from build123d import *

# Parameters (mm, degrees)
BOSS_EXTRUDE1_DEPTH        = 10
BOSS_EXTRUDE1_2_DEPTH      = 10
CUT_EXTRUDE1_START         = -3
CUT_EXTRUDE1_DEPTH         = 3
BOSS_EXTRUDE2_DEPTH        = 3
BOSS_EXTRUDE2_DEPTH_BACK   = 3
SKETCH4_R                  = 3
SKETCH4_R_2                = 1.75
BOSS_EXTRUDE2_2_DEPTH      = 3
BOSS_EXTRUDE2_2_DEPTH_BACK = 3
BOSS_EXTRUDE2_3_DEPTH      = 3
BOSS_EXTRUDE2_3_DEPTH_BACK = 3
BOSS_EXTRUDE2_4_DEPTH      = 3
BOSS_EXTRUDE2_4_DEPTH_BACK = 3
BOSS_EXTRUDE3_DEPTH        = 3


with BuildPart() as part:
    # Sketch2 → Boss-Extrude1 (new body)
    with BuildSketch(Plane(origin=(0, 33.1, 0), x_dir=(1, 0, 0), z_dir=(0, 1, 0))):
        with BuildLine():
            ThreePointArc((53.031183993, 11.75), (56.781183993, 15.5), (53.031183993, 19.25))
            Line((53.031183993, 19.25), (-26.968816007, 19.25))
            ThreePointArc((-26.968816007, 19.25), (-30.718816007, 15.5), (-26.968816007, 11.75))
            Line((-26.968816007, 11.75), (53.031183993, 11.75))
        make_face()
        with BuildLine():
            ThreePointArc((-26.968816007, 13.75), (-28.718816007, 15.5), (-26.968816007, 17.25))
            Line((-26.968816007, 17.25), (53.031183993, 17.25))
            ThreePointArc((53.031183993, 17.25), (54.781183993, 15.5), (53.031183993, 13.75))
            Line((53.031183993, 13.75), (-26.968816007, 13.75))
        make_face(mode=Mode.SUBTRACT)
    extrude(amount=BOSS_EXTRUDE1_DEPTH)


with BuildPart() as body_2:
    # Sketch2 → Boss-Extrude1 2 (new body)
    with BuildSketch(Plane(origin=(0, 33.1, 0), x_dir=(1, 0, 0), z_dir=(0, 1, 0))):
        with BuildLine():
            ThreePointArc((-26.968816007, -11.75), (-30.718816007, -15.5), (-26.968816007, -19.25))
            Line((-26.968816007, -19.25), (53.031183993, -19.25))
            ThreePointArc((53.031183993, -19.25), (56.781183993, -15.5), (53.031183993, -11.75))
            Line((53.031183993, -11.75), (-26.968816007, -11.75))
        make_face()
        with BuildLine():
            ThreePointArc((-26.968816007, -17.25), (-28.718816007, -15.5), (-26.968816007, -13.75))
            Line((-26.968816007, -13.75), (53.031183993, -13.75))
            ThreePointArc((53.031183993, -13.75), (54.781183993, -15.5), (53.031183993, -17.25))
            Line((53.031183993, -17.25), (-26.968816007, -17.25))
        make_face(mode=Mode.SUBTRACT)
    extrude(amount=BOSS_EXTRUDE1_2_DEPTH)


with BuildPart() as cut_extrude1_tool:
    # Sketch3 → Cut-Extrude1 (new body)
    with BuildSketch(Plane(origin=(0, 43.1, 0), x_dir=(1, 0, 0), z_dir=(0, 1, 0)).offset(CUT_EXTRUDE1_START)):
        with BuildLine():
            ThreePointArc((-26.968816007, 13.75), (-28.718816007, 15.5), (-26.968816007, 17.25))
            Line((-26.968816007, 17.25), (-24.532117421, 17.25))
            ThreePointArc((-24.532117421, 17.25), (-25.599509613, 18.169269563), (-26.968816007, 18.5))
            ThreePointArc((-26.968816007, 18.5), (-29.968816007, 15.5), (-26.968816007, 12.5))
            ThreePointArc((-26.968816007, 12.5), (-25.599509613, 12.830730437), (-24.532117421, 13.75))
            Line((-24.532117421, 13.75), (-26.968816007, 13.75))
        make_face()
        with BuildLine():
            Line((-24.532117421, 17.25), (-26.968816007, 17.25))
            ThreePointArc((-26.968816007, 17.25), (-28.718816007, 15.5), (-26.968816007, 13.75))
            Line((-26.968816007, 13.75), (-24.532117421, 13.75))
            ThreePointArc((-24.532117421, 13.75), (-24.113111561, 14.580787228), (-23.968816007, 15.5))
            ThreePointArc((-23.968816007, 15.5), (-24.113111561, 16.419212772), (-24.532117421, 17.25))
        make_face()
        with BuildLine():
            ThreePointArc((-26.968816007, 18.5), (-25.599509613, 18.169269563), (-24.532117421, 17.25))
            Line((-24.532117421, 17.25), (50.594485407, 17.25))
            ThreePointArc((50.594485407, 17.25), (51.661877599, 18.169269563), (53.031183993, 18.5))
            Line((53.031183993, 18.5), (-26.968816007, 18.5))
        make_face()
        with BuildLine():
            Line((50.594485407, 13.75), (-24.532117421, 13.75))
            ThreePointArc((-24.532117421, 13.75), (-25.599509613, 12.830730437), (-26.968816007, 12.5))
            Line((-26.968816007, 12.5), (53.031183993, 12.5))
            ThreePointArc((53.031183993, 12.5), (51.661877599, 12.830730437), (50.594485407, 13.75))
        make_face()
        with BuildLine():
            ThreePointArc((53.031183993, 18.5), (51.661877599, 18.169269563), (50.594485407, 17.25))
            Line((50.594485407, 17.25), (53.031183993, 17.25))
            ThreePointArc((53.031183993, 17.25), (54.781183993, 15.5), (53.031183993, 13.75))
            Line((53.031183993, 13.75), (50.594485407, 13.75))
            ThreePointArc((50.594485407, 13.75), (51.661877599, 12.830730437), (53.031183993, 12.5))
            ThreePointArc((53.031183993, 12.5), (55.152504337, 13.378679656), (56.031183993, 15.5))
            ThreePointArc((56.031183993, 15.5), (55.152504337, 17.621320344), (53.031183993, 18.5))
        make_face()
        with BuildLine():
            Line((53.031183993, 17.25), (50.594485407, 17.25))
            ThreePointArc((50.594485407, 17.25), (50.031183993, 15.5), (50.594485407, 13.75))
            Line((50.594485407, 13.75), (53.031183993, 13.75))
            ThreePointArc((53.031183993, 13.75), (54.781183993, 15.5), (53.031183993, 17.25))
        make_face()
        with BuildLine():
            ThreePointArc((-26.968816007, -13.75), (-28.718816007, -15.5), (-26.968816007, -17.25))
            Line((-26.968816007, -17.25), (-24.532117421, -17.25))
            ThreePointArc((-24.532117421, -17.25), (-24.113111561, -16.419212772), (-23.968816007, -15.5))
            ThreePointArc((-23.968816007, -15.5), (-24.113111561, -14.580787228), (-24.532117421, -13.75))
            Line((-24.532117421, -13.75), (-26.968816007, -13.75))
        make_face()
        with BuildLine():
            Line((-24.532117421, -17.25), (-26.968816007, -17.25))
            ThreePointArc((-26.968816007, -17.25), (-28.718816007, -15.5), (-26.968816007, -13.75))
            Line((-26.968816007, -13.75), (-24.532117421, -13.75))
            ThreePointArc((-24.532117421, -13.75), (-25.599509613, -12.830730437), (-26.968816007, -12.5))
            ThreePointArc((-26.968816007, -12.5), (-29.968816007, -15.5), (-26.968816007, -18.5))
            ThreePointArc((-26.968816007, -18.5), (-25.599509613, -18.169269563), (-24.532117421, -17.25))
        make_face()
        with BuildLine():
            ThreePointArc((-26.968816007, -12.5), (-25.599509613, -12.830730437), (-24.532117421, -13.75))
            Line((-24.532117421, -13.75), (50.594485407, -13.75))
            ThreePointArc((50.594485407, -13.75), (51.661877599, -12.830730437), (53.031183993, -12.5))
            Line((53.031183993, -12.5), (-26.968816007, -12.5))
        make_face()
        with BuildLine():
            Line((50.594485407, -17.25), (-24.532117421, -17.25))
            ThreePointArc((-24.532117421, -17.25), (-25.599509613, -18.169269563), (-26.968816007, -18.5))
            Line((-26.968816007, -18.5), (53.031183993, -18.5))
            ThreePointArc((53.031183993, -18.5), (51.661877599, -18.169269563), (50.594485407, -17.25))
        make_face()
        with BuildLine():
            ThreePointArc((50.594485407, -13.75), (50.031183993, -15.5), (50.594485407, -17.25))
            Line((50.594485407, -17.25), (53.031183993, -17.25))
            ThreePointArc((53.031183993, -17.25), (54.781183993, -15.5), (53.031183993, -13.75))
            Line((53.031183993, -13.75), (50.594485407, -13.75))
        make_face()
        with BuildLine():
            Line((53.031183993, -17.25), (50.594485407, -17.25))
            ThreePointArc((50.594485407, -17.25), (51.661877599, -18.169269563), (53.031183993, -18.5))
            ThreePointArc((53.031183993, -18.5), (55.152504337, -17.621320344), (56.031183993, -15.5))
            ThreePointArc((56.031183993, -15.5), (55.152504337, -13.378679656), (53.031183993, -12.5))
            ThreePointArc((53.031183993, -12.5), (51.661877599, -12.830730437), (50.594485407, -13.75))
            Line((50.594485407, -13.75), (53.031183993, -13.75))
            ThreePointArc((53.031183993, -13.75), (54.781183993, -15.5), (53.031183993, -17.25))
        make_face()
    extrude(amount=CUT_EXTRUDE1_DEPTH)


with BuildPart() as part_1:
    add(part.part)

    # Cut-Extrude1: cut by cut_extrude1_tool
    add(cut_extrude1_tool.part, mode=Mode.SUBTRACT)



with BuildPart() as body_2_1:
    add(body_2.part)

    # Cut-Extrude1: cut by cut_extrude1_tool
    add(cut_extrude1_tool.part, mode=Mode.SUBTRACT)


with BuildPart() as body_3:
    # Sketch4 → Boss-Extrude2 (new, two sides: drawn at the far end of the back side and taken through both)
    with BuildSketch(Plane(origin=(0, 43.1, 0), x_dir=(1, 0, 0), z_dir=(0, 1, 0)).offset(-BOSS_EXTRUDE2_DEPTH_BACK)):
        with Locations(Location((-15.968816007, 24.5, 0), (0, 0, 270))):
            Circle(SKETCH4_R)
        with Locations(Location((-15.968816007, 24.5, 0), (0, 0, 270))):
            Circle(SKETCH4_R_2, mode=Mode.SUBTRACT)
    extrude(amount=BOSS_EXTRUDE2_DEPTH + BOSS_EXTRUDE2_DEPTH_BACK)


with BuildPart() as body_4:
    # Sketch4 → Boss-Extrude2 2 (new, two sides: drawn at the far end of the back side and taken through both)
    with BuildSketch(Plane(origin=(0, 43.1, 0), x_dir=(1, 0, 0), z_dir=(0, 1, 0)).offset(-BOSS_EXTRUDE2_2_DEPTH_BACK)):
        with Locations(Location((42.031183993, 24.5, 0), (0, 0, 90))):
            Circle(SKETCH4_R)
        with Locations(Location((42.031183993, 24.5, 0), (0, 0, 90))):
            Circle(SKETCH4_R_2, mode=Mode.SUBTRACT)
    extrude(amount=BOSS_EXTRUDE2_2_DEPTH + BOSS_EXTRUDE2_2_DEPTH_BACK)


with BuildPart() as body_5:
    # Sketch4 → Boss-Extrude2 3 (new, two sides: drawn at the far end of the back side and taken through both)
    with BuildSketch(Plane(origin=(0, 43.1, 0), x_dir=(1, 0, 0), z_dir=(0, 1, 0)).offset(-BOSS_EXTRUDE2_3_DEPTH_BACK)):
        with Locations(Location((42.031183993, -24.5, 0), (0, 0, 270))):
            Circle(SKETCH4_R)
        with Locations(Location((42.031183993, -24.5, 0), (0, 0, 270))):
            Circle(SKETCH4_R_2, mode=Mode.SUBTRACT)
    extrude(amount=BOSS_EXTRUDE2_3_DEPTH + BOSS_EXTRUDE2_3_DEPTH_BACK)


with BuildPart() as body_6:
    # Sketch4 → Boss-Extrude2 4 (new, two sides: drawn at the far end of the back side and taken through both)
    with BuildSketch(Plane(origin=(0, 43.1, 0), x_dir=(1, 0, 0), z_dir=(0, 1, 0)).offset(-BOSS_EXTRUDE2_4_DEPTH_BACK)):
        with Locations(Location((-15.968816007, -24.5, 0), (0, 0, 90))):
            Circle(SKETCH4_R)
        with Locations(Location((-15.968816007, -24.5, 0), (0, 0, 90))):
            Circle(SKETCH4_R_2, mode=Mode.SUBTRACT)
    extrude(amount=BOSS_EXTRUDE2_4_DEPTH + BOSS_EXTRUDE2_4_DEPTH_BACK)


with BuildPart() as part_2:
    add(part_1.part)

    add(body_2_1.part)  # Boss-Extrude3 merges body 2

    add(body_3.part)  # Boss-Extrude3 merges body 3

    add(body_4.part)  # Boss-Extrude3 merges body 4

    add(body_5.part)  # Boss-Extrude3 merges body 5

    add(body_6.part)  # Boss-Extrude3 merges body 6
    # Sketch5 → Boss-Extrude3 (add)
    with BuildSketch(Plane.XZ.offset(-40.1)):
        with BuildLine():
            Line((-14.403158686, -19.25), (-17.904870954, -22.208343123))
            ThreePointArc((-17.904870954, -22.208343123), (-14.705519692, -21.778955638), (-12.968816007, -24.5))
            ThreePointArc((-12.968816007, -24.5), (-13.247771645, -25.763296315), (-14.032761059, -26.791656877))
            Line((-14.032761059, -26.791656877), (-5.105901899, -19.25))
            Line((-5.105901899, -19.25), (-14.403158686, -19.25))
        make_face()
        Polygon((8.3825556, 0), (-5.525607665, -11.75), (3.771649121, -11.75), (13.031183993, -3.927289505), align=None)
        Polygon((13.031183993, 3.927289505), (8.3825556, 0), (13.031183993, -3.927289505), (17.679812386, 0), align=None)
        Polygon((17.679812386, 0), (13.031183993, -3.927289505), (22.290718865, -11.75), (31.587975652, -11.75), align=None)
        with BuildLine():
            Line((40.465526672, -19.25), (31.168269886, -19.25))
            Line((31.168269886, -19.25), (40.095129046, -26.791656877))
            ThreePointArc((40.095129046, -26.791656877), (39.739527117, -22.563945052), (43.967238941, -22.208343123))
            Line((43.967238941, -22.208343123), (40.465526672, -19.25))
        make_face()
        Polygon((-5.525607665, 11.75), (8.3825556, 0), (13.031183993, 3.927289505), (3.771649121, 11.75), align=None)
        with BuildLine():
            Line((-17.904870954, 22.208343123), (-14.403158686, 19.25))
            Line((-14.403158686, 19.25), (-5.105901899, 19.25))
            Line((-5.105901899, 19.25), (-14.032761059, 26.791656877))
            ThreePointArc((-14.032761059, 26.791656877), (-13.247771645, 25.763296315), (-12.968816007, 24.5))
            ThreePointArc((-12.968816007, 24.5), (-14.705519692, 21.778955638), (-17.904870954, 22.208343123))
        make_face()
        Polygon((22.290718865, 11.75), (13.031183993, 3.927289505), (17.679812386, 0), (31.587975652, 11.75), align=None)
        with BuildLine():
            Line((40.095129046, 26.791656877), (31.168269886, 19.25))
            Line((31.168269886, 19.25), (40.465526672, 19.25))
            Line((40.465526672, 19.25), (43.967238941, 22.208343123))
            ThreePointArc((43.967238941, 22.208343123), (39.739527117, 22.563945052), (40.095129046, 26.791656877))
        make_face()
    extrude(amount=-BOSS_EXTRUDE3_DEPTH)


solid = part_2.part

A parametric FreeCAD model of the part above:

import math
import FreeCAD as App
import Part
import Sketcher
from FreeCAD import Vector

doc = App.newDocument("Part")
body = doc.addObject("PartDesign::Body", "Body")

sketch1 = body.newObject("Sketcher::SketchObject", "Sketch")
sketch1.AttachmentSupport = (doc.getObject("XZ_Plane"), [""])
sketch1.MapMode = "FlatFace"
sketch1.AttachmentOffset = App.Placement(Vector(0, 0, -33.1), App.Rotation())
sketch1.addGeometry([
    Part.ArcOfCircle(Part.Circle(Vector(53.031184, -15.5, 0), Vector(0, 0, 1), 3.75), math.radians(-90), math.radians(90)),
    Part.LineSegment(Vector(53.031184, -19.25, 0), Vector(-26.968816, -19.25, 0)),
    Part.ArcOfCircle(Part.Circle(Vector(-26.968816, -15.5, 0), Vector(0, 0, 1), 3.75), math.radians(90), math.radians(270)),
    Part.LineSegment(Vector(-26.968816, -11.75, 0), Vector(53.031184, -11.75, 0)),
    Part.LineSegment(Vector(53.031184, -13.75, 0), Vector(-26.968816, -13.75, 0)),
    Part.ArcOfCircle(Part.Circle(Vector(-26.968816, -15.5, 0), Vector(0, 0, 1), 1.75), math.radians(90), math.radians(270)),
    Part.LineSegment(Vector(-26.968816, -17.25, 0), Vector(53.031184, -17.25, 0)),
    Part.ArcOfCircle(Part.Circle(Vector(53.031184, -15.5, 0), Vector(0, 0, 1), 1.75), math.radians(-90), math.radians(90)),
], False)
sketch1.addConstraint([
    Sketcher.Constraint("Tangent", 0, 1, 1, 1),
    Sketcher.Constraint("Tangent", 1, 2, 2, 2),
    Sketcher.Constraint("Tangent", 2, 1, 3, 1),
    Sketcher.Constraint("Tangent", 3, 2, 0, 2),
    Sketcher.Constraint("Tangent", 4, 2, 5, 1),
    Sketcher.Constraint("Tangent", 5, 2, 6, 1),
    Sketcher.Constraint("Tangent", 6, 2, 7, 1),
    Sketcher.Constraint("Tangent", 7, 2, 4, 1),
    Sketcher.Constraint("Horizontal", 1),
    Sketcher.Constraint("Horizontal", 3),
    Sketcher.Constraint("Horizontal", 4),
    Sketcher.Constraint("Horizontal", 6),
    Sketcher.Constraint("Coincident", 5, 3, 2, 3),
    Sketcher.Constraint("Vertical", 7, 3, 0, 1),
    Sketcher.Constraint("DistanceX", 1, 2, 1, 1, 80.0),
    Sketcher.Constraint("Radius", 0, 3.75),
    Sketcher.Constraint("Radius", 5, 1.75),
    Sketcher.Constraint("DistanceY", 0, 3, -1, 1, 15.5),
    Sketcher.Constraint("DistanceX", -1, 1, 0, 3, 53.031184),
])
pad1 = body.newObject("PartDesign::Pad", "Pad")
pad1.Profile = sketch1
pad1.Length = 10
pad1.Reversed = True
body2 = doc.addObject("PartDesign::Body", "Body001")

sketch2 = body2.newObject("Sketcher::SketchObject", "Sketch001")
sketch2.AttachmentSupport = (doc.getObject("XZ_Plane001"), [""])
sketch2.MapMode = "FlatFace"
sketch2.AttachmentOffset = App.Placement(Vector(0, 0, -33.1), App.Rotation())
sketch2.addGeometry([
    Part.ArcOfCircle(Part.Circle(Vector(-26.968816, 15.5, 0), Vector(0, 0, 1), 3.75), math.radians(90), math.radians(270)),
    Part.LineSegment(Vector(-26.968816, 19.25, 0), Vector(53.031184, 19.25, 0)),
    Part.ArcOfCircle(Part.Circle(Vector(53.031184, 15.5, 0), Vector(0, 0, 1), 3.75), math.radians(-90), math.radians(90)),
    Part.LineSegment(Vector(53.031184, 11.75, 0), Vector(-26.968816, 11.75, 0)),
    Part.LineSegment(Vector(53.031184, 17.25, 0), Vector(-26.968816, 17.25, 0)),
    Part.ArcOfCircle(Part.Circle(Vector(-26.968816, 15.5, 0), Vector(0, 0, 1), 1.75), math.radians(90), math.radians(270)),
    Part.LineSegment(Vector(-26.968816, 13.75, 0), Vector(53.031184, 13.75, 0)),
    Part.ArcOfCircle(Part.Circle(Vector(53.031184, 15.5, 0), Vector(0, 0, 1), 1.75), math.radians(-90), math.radians(90)),
], False)
sketch2.addConstraint([
    Sketcher.Constraint("Tangent", 0, 1, 1, 1),
    Sketcher.Constraint("Tangent", 1, 2, 2, 2),
    Sketcher.Constraint("Tangent", 2, 1, 3, 1),
    Sketcher.Constraint("Tangent", 3, 2, 0, 2),
    Sketcher.Constraint("Tangent", 4, 2, 5, 1),
    Sketcher.Constraint("Tangent", 5, 2, 6, 1),
    Sketcher.Constraint("Tangent", 6, 2, 7, 1),
    Sketcher.Constraint("Tangent", 7, 2, 4, 1),
    Sketcher.Constraint("Horizontal", 1),
    Sketcher.Constraint("Horizontal", 3),
    Sketcher.Constraint("Horizontal", 4),
    Sketcher.Constraint("Horizontal", 6),
    Sketcher.Constraint("Coincident", 5, 3, 0, 3),
    Sketcher.Constraint("Vertical", 7, 3, 1, 2),
    Sketcher.Constraint("DistanceX", 1, 1, 1, 2, 80.0),
    Sketcher.Constraint("Radius", 0, 3.75),
    Sketcher.Constraint("Radius", 5, 1.75),
    Sketcher.Constraint("DistanceY", -1, 1, 0, 3, 15.5),
    Sketcher.Constraint("DistanceX", 0, 3, -1, 1, 26.968816),
])
pad2 = body2.newObject("PartDesign::Pad", "Pad001")
pad2.Profile = sketch2
pad2.Length = 10
pad2.Reversed = True
body3 = doc.addObject("PartDesign::Body", "Body002")
body3.AllowCompound = True

sketch3 = body3.newObject("Sketcher::SketchObject", "Sketch002")
sketch3.AttachmentSupport = (doc.getObject("XZ_Plane002"), [""])
sketch3.MapMode = "FlatFace"
sketch3.AttachmentOffset = App.Placement(Vector(0, 0, -40.1), App.Rotation())
sketch3.addGeometry([
    Part.ArcOfCircle(Part.Circle(Vector(-26.968816, -15.5, 0), Vector(0, 0, 1), 3), math.radians(90), math.radians(270)),
    Part.LineSegment(Vector(-26.968816, -12.5, 0), Vector(53.031184, -12.5, 0)),
    Part.ArcOfCircle(Part.Circle(Vector(53.031184, -15.5, 0), Vector(0, 0, 1), 3), math.radians(0), math.radians(90)),
    Part.ArcOfCircle(Part.Circle(Vector(53.031184, -15.5, 0), Vector(0, 0, 1), 3), math.radians(-90), math.radians(0)),
    Part.LineSegment(Vector(53.031184, -18.5, 0), Vector(-26.968816, -18.5, 0)),
    Part.ArcOfCircle(Part.Circle(Vector(-26.968816, -15.5, 0), Vector(0, 0, 1), 3), math.radians(0), math.radians(35.685335)),
    Part.ArcOfCircle(Part.Circle(Vector(-26.968816, -15.5, 0), Vector(0, 0, 1), 3), math.radians(-35.685335), math.radians(0)),
    Part.LineSegment(Vector(-24.532117, -17.25, 0), Vector(50.594485, -17.25, 0)),
    Part.ArcOfCircle(Part.Circle(Vector(53.031184, -15.5, 0), Vector(0, 0, 1), 3), math.radians(144.314665), math.radians(215.685335)),
    Part.LineSegment(Vector(50.594485, -13.75, 0), Vector(-24.532117, -13.75, 0)),
    Part.LineSegment(Vector(53.031184, 12.5, 0), Vector(-26.968816, 12.5, 0)),
    Part.ArcOfCircle(Part.Circle(Vector(-26.968816, 15.5, 0), Vector(0, 0, 1), 3), math.radians(90), math.radians(270)),
    Part.LineSegment(Vector(-26.968816, 18.5, 0), Vector(53.031184, 18.5, 0)),
    Part.ArcOfCircle(Part.Circle(Vector(53.031184, 15.5, 0), Vector(0, 0, 1), 3), math.radians(0), math.radians(90)),
    Part.ArcOfCircle(Part.Circle(Vector(53.031184, 15.5, 0), Vector(0, 0, 1), 3), math.radians(-90), math.radians(0)),
    Part.ArcOfCircle(Part.Circle(Vector(-26.968816, 15.5, 0), Vector(0, 0, 1), 3), math.radians(0), math.radians(35.685335)),
    Part.ArcOfCircle(Part.Circle(Vector(-26.968816, 15.5, 0), Vector(0, 0, 1), 3), math.radians(-35.685335), math.radians(0)),
    Part.LineSegment(Vector(-24.532117, 13.75, 0), Vector(50.594485, 13.75, 0)),
    Part.ArcOfCircle(Part.Circle(Vector(53.031184, 15.5, 0), Vector(0, 0, 1), 3), math.radians(144.314665), math.radians(215.685335)),
    Part.LineSegment(Vector(50.594485, 17.25, 0), Vector(-24.532117, 17.25, 0)),
], False)
sketch3.addConstraint([
    Sketcher.Constraint("Tangent", 0, 1, 1, 1),
    Sketcher.Constraint("Tangent", 1, 2, 2, 2),
    Sketcher.Constraint("Tangent", 2, 1, 3, 2),
    Sketcher.Constraint("Tangent", 3, 1, 4, 1),
    Sketcher.Constraint("Tangent", 4, 2, 0, 2),
    Sketcher.Constraint("Tangent", 5, 1, 6, 2),
    Sketcher.Constraint("Coincident", 6, 1, 7, 1),
    Sketcher.Constraint("Coincident", 7, 2, 8, 2),
    Sketcher.Constraint("Coincident", 8, 1, 9, 1),
    Sketcher.Constraint("Coincident", 9, 2, 5, 2),
    Sketcher.Constraint("Tangent", 10, 2, 11, 2),
    Sketcher.Constraint("Tangent", 11, 1, 12, 1),
    Sketcher.Constraint("Tangent", 12, 2, 13, 2),
    Sketcher.Constraint("Tangent", 13, 1, 14, 2),
    Sketcher.Constraint("Tangent", 14, 1, 10, 1),
    Sketcher.Constraint("Tangent", 15, 1, 16, 2),
    Sketcher.Constraint("Coincident", 16, 1, 17, 1),
    Sketcher.Constraint("Coincident", 17, 2, 18, 2),
    Sketcher.Constraint("Coincident", 18, 1, 19, 1),
    Sketcher.Constraint("Coincident", 19, 2, 15, 2),
    Sketcher.Constraint("Horizontal", 1),
    Sketcher.Constraint("Horizontal", 4),
    Sketcher.Constraint("Horizontal", 7),
    Sketcher.Constraint("Horizontal", 9),
    Sketcher.Constraint("Horizontal", 10),
    Sketcher.Constraint("Horizontal", 12),
    Sketcher.Constraint("Horizontal", 17),
    Sketcher.Constraint("Horizontal", 19),
    Sketcher.Constraint("Coincident", 5, 3, 0, 3),
    Sketcher.Constraint("Coincident", 8, 3, 2, 3),
    Sketcher.Constraint("Coincident", 15, 3, 11, 3),
    Sketcher.Constraint("Coincident", 18, 3, 13, 3),
    Sketcher.Constraint("Equal", 0, 2),
    Sketcher.Constraint("Equal", 3, 5),
    Sketcher.Constraint("Equal", 5, 6),
    Sketcher.Constraint("Equal", 6, 8),
    Sketcher.Constraint("Equal", 8, 11),
    Sketcher.Constraint("Equal", 11, 13),
    Sketcher.Constraint("Equal", 14, 15),
    Sketcher.Constraint("Equal", 15, 16),
    Sketcher.Constraint("Equal", 16, 18),
    Sketcher.Constraint("Symmetric", 0, 3, 11, 3, -1),
    Sketcher.Constraint("Symmetric", 2, 1, 13, 1, -1),
    Sketcher.Constraint("Horizontal", 8, 3, 2, 1),
    Sketcher.Constraint("Horizontal", 2, 1, 5, 1),
    Sketcher.Constraint("Horizontal", 13, 1, 15, 1),
    Sketcher.Constraint("Vertical", 7, 2, 8, 1),
    Sketcher.Constraint("Vertical", 9, 2, 16, 1),
    Sketcher.Constraint("Vertical", 17, 2, 18, 1),
    Sketcher.Constraint("Radius", 0, 3.0),
    Sketcher.Constraint("DistanceX", 1, 1, 1, 2, 80.0),
    Sketcher.Constraint("DistanceY", 5, 3, 11, 3, 31.0),
    Sketcher.Constraint("DistanceY", 7, 2, 8, 1, 3.5),
    Sketcher.Constraint("DistanceX", 0, 3, -1, 1, 26.968816),
])
pad3 = body3.newObject("PartDesign::Pad", "Pad002")
pad3.Profile = sketch3
pad3.Length = 3
pad3.Reversed = True
doc.recompute()

body4 = doc.addObject("PartDesign::Body", "Body003")
body4.BaseFeature = body3
boolean = body.newObject("PartDesign::Boolean", "Boolean")
boolean.Type = "Cut"
boolean.addObjects([body4])
doc.recompute()

boolean2 = body2.newObject("PartDesign::Boolean", "Boolean001")
boolean2.Type = "Cut"
boolean2.addObjects([body3])
body5 = doc.addObject("PartDesign::Body", "Body004")

sketch4 = body5.newObject("Sketcher::SketchObject", "Sketch003")
sketch4.AttachmentSupport = (doc.getObject("XZ_Plane004"), [""])
sketch4.MapMode = "FlatFace"
sketch4.AttachmentOffset = App.Placement(Vector(0, 0, -43.1), App.Rotation())
sketch4.addGeometry([
    Part.Circle(Vector(-15.968816, -24.5, 0), Vector(0, 0, 1), 3),
    Part.Circle(Vector(-15.968816, -24.5, 0), Vector(0, 0, 1), 1.75),
], False)
sketch4.addConstraint([
    Sketcher.Constraint("Coincident", 1, 3, 0, 3),
    Sketcher.Constraint("Diameter", 0, 6.0),
    Sketcher.Constraint("Diameter", 1, 3.5),
    Sketcher.Constraint("DistanceY", 0, 3, -1, 1, 24.5),
    Sketcher.Constraint("DistanceX", 0, 3, -1, 1, 15.968816),
])
pad4 = body5.newObject("PartDesign::Pad", "Pad003")
pad4.Profile = sketch4
pad4.Type = "TwoLengths"
pad4.Length = 3
pad4.Length2 = 3
pad4.Reversed = True
body6 = doc.addObject("PartDesign::Body", "Body005")

sketch5 = body6.newObject("Sketcher::SketchObject", "Sketch004")
sketch5.AttachmentSupport = (doc.getObject("XZ_Plane005"), [""])
sketch5.MapMode = "FlatFace"
sketch5.AttachmentOffset = App.Placement(Vector(0, 0, -43.1), App.Rotation())
sketch5.addGeometry([
    Part.Circle(Vector(42.031184, -24.5, 0), Vector(0, 0, 1), 3),
    Part.Circle(Vector(42.031184, -24.5, 0), Vector(0, 0, 1), 1.75),
], False)
sketch5.addConstraint([
    Sketcher.Constraint("Coincident", 1, 3, 0, 3),
    Sketcher.Constraint("Diameter", 0, 6.0),
    Sketcher.Constraint("Diameter", 1, 3.5),
    Sketcher.Constraint("DistanceY", 0, 3, -1, 1, 24.5),
    Sketcher.Constraint("DistanceX", -1, 1, 0, 3, 42.031184),
])
pad5 = body6.newObject("PartDesign::Pad", "Pad004")
pad5.Profile = sketch5
pad5.Type = "TwoLengths"
pad5.Length = 3
pad5.Length2 = 3
pad5.Reversed = True
body7 = doc.addObject("PartDesign::Body", "Body006")

sketch6 = body7.newObject("Sketcher::SketchObject", "Sketch005")
sketch6.AttachmentSupport = (doc.getObject("XZ_Plane006"), [""])
sketch6.MapMode = "FlatFace"
sketch6.AttachmentOffset = App.Placement(Vector(0, 0, -43.1), App.Rotation())
sketch6.addGeometry([
    Part.Circle(Vector(42.031184, 24.5, 0), Vector(0, 0, 1), 3),
    Part.Circle(Vector(42.031184, 24.5, 0), Vector(0, 0, 1), 1.75),
], False)
sketch6.addConstraint([
    Sketcher.Constraint("Coincident", 1, 3, 0, 3),
    Sketcher.Constraint("Diameter", 0, 6.0),
    Sketcher.Constraint("Diameter", 1, 3.5),
    Sketcher.Constraint("DistanceY", -1, 1, 0, 3, 24.5),
    Sketcher.Constraint("DistanceX", -1, 1, 0, 3, 42.031184),
])
pad6 = body7.newObject("PartDesign::Pad", "Pad005")
pad6.Profile = sketch6
pad6.Type = "TwoLengths"
pad6.Length = 3
pad6.Length2 = 3
pad6.Reversed = True
body8 = doc.addObject("PartDesign::Body", "Body007")

sketch7 = body8.newObject("Sketcher::SketchObject", "Sketch006")
sketch7.AttachmentSupport = (doc.getObject("XZ_Plane007"), [""])
sketch7.MapMode = "FlatFace"
sketch7.AttachmentOffset = App.Placement(Vector(0, 0, -43.1), App.Rotation())
sketch7.addGeometry([
    Part.Circle(Vector(-15.968816, 24.5, 0), Vector(0, 0, 1), 3),
    Part.Circle(Vector(-15.968816, 24.5, 0), Vector(0, 0, 1), 1.75),
], False)
sketch7.addConstraint([
    Sketcher.Constraint("Coincident", 1, 3, 0, 3),
    Sketcher.Constraint("Diameter", 0, 6.0),
    Sketcher.Constraint("Diameter", 1, 3.5),
    Sketcher.Constraint("DistanceY", -1, 1, 0, 3, 24.5),
    Sketcher.Constraint("DistanceX", 0, 3, -1, 1, 15.968816),
])
pad7 = body8.newObject("PartDesign::Pad", "Pad006")
pad7.Profile = sketch7
pad7.Type = "TwoLengths"
pad7.Length = 3
pad7.Length2 = 3
pad7.Reversed = True
body.AllowCompound = True
doc.recompute()

boolean3 = body.newObject("PartDesign::Boolean", "Boolean002")
boolean3.Type = "Fuse"
boolean3.addObjects([body2])
doc.recompute()

boolean4 = body.newObject("PartDesign::Boolean", "Boolean003")
boolean4.Type = "Fuse"
boolean4.addObjects([body5])
doc.recompute()

boolean5 = body.newObject("PartDesign::Boolean", "Boolean004")
boolean5.Type = "Fuse"
boolean5.addObjects([body6])
doc.recompute()

boolean6 = body.newObject("PartDesign::Boolean", "Boolean005")
boolean6.Type = "Fuse"
boolean6.addObjects([body7])
doc.recompute()

boolean7 = body.newObject("PartDesign::Boolean", "Boolean006")
boolean7.Type = "Fuse"
boolean7.addObjects([body8])

sketch8 = body.newObject("Sketcher::SketchObject", "Sketch007")
sketch8.AttachmentSupport = (doc.getObject("XZ_Plane"), [""])
sketch8.MapMode = "FlatFace"
sketch8.AttachmentOffset = App.Placement(Vector(0, 0, -40.1), App.Rotation())
sketch8.addGeometry([
    Part.LineSegment(Vector(-14.403159, -19.25, 0), Vector(-17.904871, -22.208343, 0)),
    Part.ArcOfCircle(Part.Circle(Vector(-15.968816, -24.5, 0), Vector(0, 0, 1), 3), math.radians(0), math.radians(130.192046)),
    Part.ArcOfCircle(Part.Circle(Vector(-15.968816, -24.5, 0), Vector(0, 0, 1), 3), math.radians(-49.807954), math.radians(0)),
    Part.LineSegment(Vector(-14.032761, -26.791657, 0), Vector(-5.105902, -19.25, 0)),
    Part.LineSegment(Vector(-5.105902, -19.25, 0), Vector(-14.403159, -19.25, 0)),
    Part.LineSegment(Vector(8.382556, 0, 0), Vector(-5.525608, -11.75, 0)),
    Part.LineSegment(Vector(-5.525608, -11.75, 0), Vector(3.771649, -11.75, 0)),
    Part.LineSegment(Vector(3.771649, -11.75, 0), Vector(13.031184, -3.92729, 0)),
    Part.LineSegment(Vector(13.031184, -3.92729, 0), Vector(22.290719, -11.75, 0)),
    Part.LineSegment(Vector(22.290719, -11.75, 0), Vector(31.587976, -11.75, 0)),
    Part.LineSegment(Vector(31.587976, -11.75, 0), Vector(17.679812, 0, 0)),
    Part.LineSegment(Vector(17.679812, 0, 0), Vector(31.587976, 11.75, 0)),
    Part.LineSegment(Vector(31.587976, 11.75, 0), Vector(22.290719, 11.75, 0)),
    Part.LineSegment(Vector(22.290719, 11.75, 0), Vector(13.031184, 3.92729, 0)),
    Part.LineSegment(Vector(13.031184, 3.92729, 0), Vector(3.771649, 11.75, 0)),
    Part.LineSegment(Vector(3.771649, 11.75, 0), Vector(-5.525608, 11.75, 0)),
    Part.LineSegment(Vector(-5.525608, 11.75, 0), Vector(8.382556, 0, 0)),
    Part.LineSegment(Vector(40.465527, -19.25, 0), Vector(31.16827, -19.25, 0)),
    Part.LineSegment(Vector(31.16827, -19.25, 0), Vector(40.095129, -26.791657, 0)),
    Part.ArcOfCircle(Part.Circle(Vector(42.031184, -24.5, 0), Vector(0, 0, 1), 3), math.radians(49.807954), math.radians(229.807954)),
    Part.LineSegment(Vector(43.967239, -22.208343, 0), Vector(40.465527, -19.25, 0)),
    Part.LineSegment(Vector(-17.904871, 22.208343, 0), Vector(-14.403159, 19.25, 0)),
    Part.LineSegment(Vector(-14.403159, 19.25, 0), Vector(-5.105902, 19.25, 0)),
    Part.LineSegment(Vector(-5.105902, 19.25, 0), Vector(-14.032761, 26.791657, 0)),
    Part.ArcOfCircle(Part.Circle(Vector(-15.968816, 24.5, 0), Vector(0, 0, 1), 3), math.radians(0), math.radians(49.807954)),
    Part.ArcOfCircle(Part.Circle(Vector(-15.968816, 24.5, 0), Vector(0, 0, 1), 3), math.radians(-130.192046), math.radians(0)),
    Part.LineSegment(Vector(40.095129, 26.791657, 0), Vector(31.16827, 19.25, 0)),
    Part.LineSegment(Vector(31.16827, 19.25, 0), Vector(40.465527, 19.25, 0)),
    Part.LineSegment(Vector(40.465527, 19.25, 0), Vector(43.967239, 22.208343, 0)),
    Part.ArcOfCircle(Part.Circle(Vector(42.031184, 24.5, 0), Vector(0, 0, 1), 3), math.radians(130.192046), math.radians(310.192046)),
], False)
sketch8.addConstraint([
    Sketcher.Constraint("Tangent", 0, 2, 1, 2),
    Sketcher.Constraint("Tangent", 1, 1, 2, 2),
    Sketcher.Constraint("Tangent", 2, 1, 3, 1),
    Sketcher.Constraint("Coincident", 3, 2, 4, 1),
    Sketcher.Constraint("Coincident", 4, 2, 0, 1),
    Sketcher.Constraint("Coincident", 5, 2, 6, 1),
    Sketcher.Constraint("Coincident", 6, 2, 7, 1),
    Sketcher.Constraint("Coincident", 7, 2, 8, 1),
    Sketcher.Constraint("Coincident", 8, 2, 9, 1),
    Sketcher.Constraint("Coincident", 9, 2, 10, 1),
    Sketcher.Constraint("Coincident", 10, 2, 11, 1),
    Sketcher.Constraint("Coincident", 11, 2, 12, 1),
    Sketcher.Constraint("Coincident", 12, 2, 13, 1),
    Sketcher.Constraint("Coincident", 13, 2, 14, 1),
    Sketcher.Constraint("Coincident", 14, 2, 15, 1),
    Sketcher.Constraint("Coincident", 15, 2, 16, 1),
    Sketcher.Constraint("Coincident", 16, 2, 5, 1),
    Sketcher.Constraint("Coincident", 17, 2, 18, 1),
    Sketcher.Constraint("Tangent", 18, 2, 19, 2),
    Sketcher.Constraint("Tangent", 19, 1, 20, 1),
    Sketcher.Constraint("Coincident", 20, 2, 17, 1),
    Sketcher.Constraint("Coincident", 21, 2, 22, 1),
    Sketcher.Constraint("Coincident", 22, 2, 23, 1),
    Sketcher.Constraint("Tangent", 23, 2, 24, 2),
    Sketcher.Constraint("Tangent", 24, 1, 25, 2),
    Sketcher.Constraint("Tangent", 25, 1, 21, 1),
    Sketcher.Constraint("Coincident", 26, 2, 27, 1),
    Sketcher.Constraint("Coincident", 27, 2, 28, 1),
    Sketcher.Constraint("Tangent", 28, 2, 29, 2),
    Sketcher.Constraint("Tangent", 29, 1, 26, 1),
    Sketcher.Constraint("Horizontal", 4),
    Sketcher.Constraint("Horizontal", 6),
    Sketcher.Constraint("Horizontal", 9),
    Sketcher.Constraint("Horizontal", 12),
    Sketcher.Constraint("Horizontal", 15),
    Sketcher.Constraint("Horizontal", 17),
    Sketcher.Constraint("Horizontal", 22),
    Sketcher.Constraint("Horizontal", 27),
    Sketcher.Constraint("Equal", 1, 2),
    Sketcher.Constraint("Equal", 2, 19),
    Sketcher.Constraint("Equal", 19, 24),
    Sketcher.Constraint("Equal", 24, 25),
    Sketcher.Constraint("Equal", 25, 29),
    Sketcher.Constraint("Symmetric", 1, 3, 24, 3, -1),
    Sketcher.Constraint("Symmetric", 19, 3, 29, 3, -1),
    Sketcher.Constraint("Symmetric", 9, 2, 11, 2, -1),
    Sketcher.Constraint("Symmetric", 7, 2, 13, 2, -1),
    Sketcher.Constraint("Symmetric", 6, 2, 14, 2, -1),
    Sketcher.Constraint("Symmetric", 4, 2, 21, 2, -1),
    Sketcher.Constraint("Symmetric", 17, 2, 26, 2, -1),
    Sketcher.Constraint("PointOnObject", 10, 2, -1),
    Sketcher.Constraint("PointOnObject", 16, 2, -1),
    Sketcher.Constraint("Parallel", 0, 3),
    Sketcher.Constraint("Parallel", 3, 5),
    Sketcher.Constraint("Parallel", 5, 7),
    Sketcher.Constraint("Parallel", 8, 10),
    Sketcher.Constraint("Parallel", 7, 11),
    Sketcher.Constraint("Parallel", 11, 13),
    Sketcher.Constraint("Parallel", 14, 16),
    Sketcher.Constraint("Parallel", 16, 18),
    Sketcher.Constraint("Parallel", 18, 20),
    Sketcher.Constraint("Parallel", 21, 23),
    Sketcher.Constraint("Parallel", 26, 28),
    Sketcher.Constraint("Horizontal", 2, 3, 19, 3),
    Sketcher.Constraint("Horizontal", 19, 3, 1, 1),
    Sketcher.Constraint("Horizontal", 6, 2, 8, 2),
    Sketcher.Constraint("Horizontal", 4, 2, 17, 2),
    Sketcher.Constraint("Horizontal", 29, 3, 24, 1),
    Sketcher.Constraint("Equal", 4, 6),
    Sketcher.Constraint("Equal", 6, 9),
    Sketcher.Constraint("Radius", 1, 3.0),
    Sketcher.Constraint("DistanceX", 1, 3, 19, 3, 58.0),
    Sketcher.Constraint("DistanceY", 2, 3, 24, 3, 49.0),
    Sketcher.Constraint("DistanceX", 1, 1, 7, 2, 26.0),
    Sketcher.Constraint("DistanceY", 3, 2, 5, 2, 7.5),
    Sketcher.Constraint("DistanceY", 9, 2, 11, 2, 23.5),
    Sketcher.Constraint("DistanceX", 3, 2, -1, 1, 5.105902),
    Sketcher.Constraint("Distance", 0, 4.584079),
    Sketcher.Constraint("DistanceX", -1, 1, 6, 2, 3.771649),
])
pad8 = body.newObject("PartDesign::Pad", "Pad007")
pad8.Profile = sketch8
pad8.Length = 3
pad8.Reversed = True

doc.recompute()
